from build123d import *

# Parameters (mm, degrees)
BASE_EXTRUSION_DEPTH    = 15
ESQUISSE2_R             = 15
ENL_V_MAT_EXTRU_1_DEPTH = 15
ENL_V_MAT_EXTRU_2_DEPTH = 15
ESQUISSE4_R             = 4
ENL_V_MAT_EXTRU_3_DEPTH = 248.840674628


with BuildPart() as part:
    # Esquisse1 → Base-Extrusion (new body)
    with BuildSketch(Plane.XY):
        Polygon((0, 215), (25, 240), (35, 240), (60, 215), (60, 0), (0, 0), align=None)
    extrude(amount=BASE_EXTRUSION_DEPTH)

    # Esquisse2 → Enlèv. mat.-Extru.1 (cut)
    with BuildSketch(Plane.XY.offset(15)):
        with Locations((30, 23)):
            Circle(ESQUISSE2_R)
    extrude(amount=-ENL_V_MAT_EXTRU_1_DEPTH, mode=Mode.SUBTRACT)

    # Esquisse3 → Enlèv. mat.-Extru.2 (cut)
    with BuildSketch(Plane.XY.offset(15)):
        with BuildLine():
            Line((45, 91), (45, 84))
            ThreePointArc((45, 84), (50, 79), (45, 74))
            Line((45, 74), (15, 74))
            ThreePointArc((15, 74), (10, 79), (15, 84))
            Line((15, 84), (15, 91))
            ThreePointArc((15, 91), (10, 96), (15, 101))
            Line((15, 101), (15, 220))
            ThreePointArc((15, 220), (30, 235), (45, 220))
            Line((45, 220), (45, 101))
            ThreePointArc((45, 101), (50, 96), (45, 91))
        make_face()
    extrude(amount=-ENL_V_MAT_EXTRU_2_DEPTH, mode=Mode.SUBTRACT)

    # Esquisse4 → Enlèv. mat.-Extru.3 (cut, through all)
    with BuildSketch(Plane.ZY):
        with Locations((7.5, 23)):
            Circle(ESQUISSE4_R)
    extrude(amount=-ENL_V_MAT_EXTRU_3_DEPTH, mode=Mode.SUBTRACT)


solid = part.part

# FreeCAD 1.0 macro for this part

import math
import FreeCAD as App
import Part
import Sketcher
from FreeCAD import Vector
Q = App.Units.Quantity

doc = App.newDocument("Part")
body = doc.addObject("PartDesign::Body", "Body")

# Sketch on XY plane
sketch1 = body.newObject("Sketcher::SketchObject", "Sketch")
sketch1.AttachmentSupport = (doc.getObject("XY_Plane"), [""])
sketch1.MapMode = "FlatFace"
sketch1.addGeometry(Part.LineSegment(Vector(25, 240, 0), Vector(0, 215, 0)), False)
sketch1.addGeometry(Part.LineSegment(Vector(0, 215, 0), Vector(0, 0, 0)), False)
sketch1.addGeometry(Part.LineSegment(Vector(0, 0, 0), Vector(60, 0, 0)), False)
sketch1.addGeometry(Part.LineSegment(Vector(60, 0, 0), Vector(60, 215, 0)), False)
sketch1.addGeometry(Part.LineSegment(Vector(60, 215, 0), Vector(35, 240, 0)), False)
sketch1.addGeometry(Part.LineSegment(Vector(35, 240, 0), Vector(25, 240, 0)), False)
sketch1.addConstraint(Sketcher.Constraint("Coincident", 0, 2, 1, 1))
sketch1.addConstraint(Sketcher.Constraint("Coincident", 1, 2, 2, 1))
sketch1.addConstraint(Sketcher.Constraint("Coincident", 2, 2, 3, 1))
sketch1.addConstraint(Sketcher.Constraint("Coincident", 3, 2, 4, 1))
sketch1.addConstraint(Sketcher.Constraint("Coincident", 4, 2, 5, 1))
sketch1.addConstraint(Sketcher.Constraint("Coincident", 5, 2, 0, 1))
sketch1.addConstraint(Sketcher.Constraint("Vertical", 1))
sketch1.addConstraint(Sketcher.Constraint("Horizontal", 2))
sketch1.addConstraint(Sketcher.Constraint("Vertical", 3))
sketch1.addConstraint(Sketcher.Constraint("Horizontal", 5))
sketch1.addConstraint(Sketcher.Constraint("Coincident", 1, 2, -1, 1))
sketch1.addConstraint(Sketcher.Constraint("Perpendicular", 0, 4))
sketch1.addConstraint(Sketcher.Constraint("Horizontal", 0, 2, 3, 2))
sketch1.addConstraint(Sketcher.Constraint("Equal", 0, 4))
sketch1.addConstraint(Sketcher.Constraint("DistanceX", 2, 1, 2, 2, Q("60 mm")))
sketch1.addConstraint(Sketcher.Constraint("DistanceX", 5, 2, 5, 1, Q("10 mm")))
sketch1.addConstraint(Sketcher.Constraint("DistanceY", 1, 2, 1, 1, Q("215 mm")))
pad1 = body.newObject("PartDesign::Pad", "Pad")
pad1.Profile = sketch1
pad1.Length = 15

# Sketch on XY plane
sketch2 = body.newObject("Sketcher::SketchObject", "Sketch001")
sketch2.AttachmentSupport = (doc.getObject("XY_Plane"), [""])
sketch2.MapMode = "FlatFace"
sketch2.AttachmentOffset = App.Placement(Vector(0, 0, 15), App.Rotation())
sketch2.addGeometry(Part.Circle(Vector(30, 23, 0), Vector(0, 0, 1), 15), False)
sketch2.addConstraint(Sketcher.Constraint("Diameter", 0, Q("30 mm")))
sketch2.addConstraint(Sketcher.Constraint("DistanceX", -1, 1, 0, 3, Q("30 mm")))
sketch2.addConstraint(Sketcher.Constraint("DistanceY", -1, 1, 0, 3, Q("23 mm")))
pocket1 = body.newObject("PartDesign::Pocket", "Pocket")
pocket1.Profile = sketch2
pocket1.Length = 15

# Sketch on XY plane
sketch3 = body.newObject("Sketcher::SketchObject", "Sketch002")
sketch3.AttachmentSupport = (doc.getObject("XY_Plane"), [""])
sketch3.MapMode = "FlatFace"
sketch3.AttachmentOffset = App.Placement(Vector(0, 0, 15), App.Rotation())
sketch3.addGeometry(Part.LineSegment(Vector(45, 84, 0), Vector(45, 91, 0)), False)
sketch3.addGeometry(Part.ArcOfCircle(Part.Circle(Vector(45, 96, 0), Vector(0, 0, 1), 5), math.radians(-90), math.radians(90)), False)
sketch3.addGeometry(Part.LineSegment(Vector(45, 101, 0), Vector(45, 220, 0)), False)
sketch3.addGeometry(Part.ArcOfCircle(Part.Circle(Vector(30, 220, 0), Vector(0, 0, 1), 15), math.radians(0), math.radians(180)), False)
sketch3.addGeometry(Part.LineSegment(Vector(15, 220, 0), Vector(15, 101, 0)), False)
sketch3.addGeometry(Part.ArcOfCircle(Part.Circle(Vector(15, 96, 0), Vector(0, 0, 1), 5), math.radians(90), math.radians(270)), False)
sketch3.addGeometry(Part.LineSegment(Vector(15, 91, 0), Vector(15, 84, 0)), False)
sketch3.addGeometry(Part.ArcOfCircle(Part.Circle(Vector(15, 79, 0), Vector(0, 0, 1), 5), math.radians(90), math.radians(270)), False)
sketch3.addGeometry(Part.LineSegment(Vector(15, 74, 0), Vector(45, 74, 0)), False)
sketch3.addGeometry(Part.ArcOfCircle(Part.Circle(Vector(45, 79, 0), Vector(0, 0, 1), 5), math.radians(-90), math.radians(90)), False)
sketch3.addConstraint(Sketcher.Constraint("Coincident", 0, 2, 1, 1))
sketch3.addConstraint(Sketcher.Constraint("Coincident", 1, 2, 2, 1))
sketch3.addConstraint(Sketcher.Constraint("Tangent", 2, 2, 3, 1))
sketch3.addConstraint(Sketcher.Constraint("Tangent", 3, 2, 4, 1))
sketch3.addConstraint(Sketcher.Constraint("Coincident", 4, 2, 5, 1))
sketch3.addConstraint(Sketcher.Constraint("Coincident", 5, 2, 6, 1))
sketch3.addConstraint(Sketcher.Constraint("Coincident", 6, 2, 7, 1))
sketch3.addConstraint(Sketcher.Constraint("Tangent", 7, 2, 8, 1))
sketch3.addConstraint(Sketcher.Constraint("Tangent", 8, 2, 9, 1))
sketch3.addConstraint(Sketcher.Constraint("Coincident", 9, 2, 0, 1))
sketch3.addConstraint(Sketcher.Constraint("Vertical", 0))
sketch3.addConstraint(Sketcher.Constraint("Vertical", 2))
sketch3.addConstraint(Sketcher.Constraint("Vertical", 4))
sketch3.addConstraint(Sketcher.Constraint("Vertical", 6))
sketch3.addConstraint(Sketcher.Constraint("Horizontal", 8))
sketch3.addConstraint(Sketcher.Constraint("Equal", 1, 5))
sketch3.addConstraint(Sketcher.Constraint("Equal", 5, 7))
sketch3.addConstraint(Sketcher.Constraint("Equal", 7, 9))
sketch3.addConstraint(Sketcher.Constraint("Horizontal", 1, 3, 5, 3))
sketch3.addConstraint(Sketcher.Constraint("Vertical", 5, 3, 7, 3))
sketch3.addConstraint(Sketcher.Constraint("Vertical", 1, 3, 9, 3))
sketch3.addConstraint(Sketcher.Constraint("Vertical", 9, 3, 0, 2))
sketch3.addConstraint(Sketcher.Constraint("Vertical", 0, 2, 1, 2))
sketch3.addConstraint(Sketcher.Constraint("Vertical", 7, 3, 3, 2))
sketch3.addConstraint(Sketcher.Constraint("Vertical", 4, 2, 5, 2))
sketch3.addConstraint(Sketcher.Constraint("Radius", 1, Q("5 mm")))
sketch3.addConstraint(Sketcher.Constraint("Radius", 3, Q("15 mm")))
sketch3.addConstraint(Sketcher.Constraint("DistanceY", 0, 1, 0, 2, Q("7 mm")))
sketch3.addConstraint(Sketcher.Constraint("DistanceY", 2, 1, 2, 2, Q("119 mm")))
sketch3.addConstraint(Sketcher.Constraint("DistanceX", -1, 1, 1, 3, Q("45 mm")))
sketch3.addConstraint(Sketcher.Constraint("DistanceY", -1, 1, 1, 3, Q("96 mm")))
pocket2 = body.newObject("PartDesign::Pocket", "Pocket001")
pocket2.Profile = sketch3
pocket2.Length = 15

# Sketch on YZ plane
sketch4 = body.newObject("Sketcher::SketchObject", "Sketch003")
sketch4.AttachmentSupport = (doc.getObject("YZ_Plane"), [""])
sketch4.MapMode = "FlatFace"
sketch4.addGeometry(Part.Circle(Vector(23, 7.5, 0), Vector(0, 0, 1), 4), False)
sketch4.addConstraint(Sketcher.Constraint("Diameter", 0, Q("8 mm")))
sketch4.addConstraint(Sketcher.Constraint("DistanceX", -1, 1, 0, 3, Q("23 mm")))
sketch4.addConstraint(Sketcher.Constraint("DistanceY", -1, 1, 0, 3, Q("7.5 mm")))
pocket3 = body.newObject("PartDesign::Pocket", "Pocket002")
pocket3.Profile = sketch4
pocket3.Type = "ThroughAll"
pocket3.Reversed = True

doc.recompute()
